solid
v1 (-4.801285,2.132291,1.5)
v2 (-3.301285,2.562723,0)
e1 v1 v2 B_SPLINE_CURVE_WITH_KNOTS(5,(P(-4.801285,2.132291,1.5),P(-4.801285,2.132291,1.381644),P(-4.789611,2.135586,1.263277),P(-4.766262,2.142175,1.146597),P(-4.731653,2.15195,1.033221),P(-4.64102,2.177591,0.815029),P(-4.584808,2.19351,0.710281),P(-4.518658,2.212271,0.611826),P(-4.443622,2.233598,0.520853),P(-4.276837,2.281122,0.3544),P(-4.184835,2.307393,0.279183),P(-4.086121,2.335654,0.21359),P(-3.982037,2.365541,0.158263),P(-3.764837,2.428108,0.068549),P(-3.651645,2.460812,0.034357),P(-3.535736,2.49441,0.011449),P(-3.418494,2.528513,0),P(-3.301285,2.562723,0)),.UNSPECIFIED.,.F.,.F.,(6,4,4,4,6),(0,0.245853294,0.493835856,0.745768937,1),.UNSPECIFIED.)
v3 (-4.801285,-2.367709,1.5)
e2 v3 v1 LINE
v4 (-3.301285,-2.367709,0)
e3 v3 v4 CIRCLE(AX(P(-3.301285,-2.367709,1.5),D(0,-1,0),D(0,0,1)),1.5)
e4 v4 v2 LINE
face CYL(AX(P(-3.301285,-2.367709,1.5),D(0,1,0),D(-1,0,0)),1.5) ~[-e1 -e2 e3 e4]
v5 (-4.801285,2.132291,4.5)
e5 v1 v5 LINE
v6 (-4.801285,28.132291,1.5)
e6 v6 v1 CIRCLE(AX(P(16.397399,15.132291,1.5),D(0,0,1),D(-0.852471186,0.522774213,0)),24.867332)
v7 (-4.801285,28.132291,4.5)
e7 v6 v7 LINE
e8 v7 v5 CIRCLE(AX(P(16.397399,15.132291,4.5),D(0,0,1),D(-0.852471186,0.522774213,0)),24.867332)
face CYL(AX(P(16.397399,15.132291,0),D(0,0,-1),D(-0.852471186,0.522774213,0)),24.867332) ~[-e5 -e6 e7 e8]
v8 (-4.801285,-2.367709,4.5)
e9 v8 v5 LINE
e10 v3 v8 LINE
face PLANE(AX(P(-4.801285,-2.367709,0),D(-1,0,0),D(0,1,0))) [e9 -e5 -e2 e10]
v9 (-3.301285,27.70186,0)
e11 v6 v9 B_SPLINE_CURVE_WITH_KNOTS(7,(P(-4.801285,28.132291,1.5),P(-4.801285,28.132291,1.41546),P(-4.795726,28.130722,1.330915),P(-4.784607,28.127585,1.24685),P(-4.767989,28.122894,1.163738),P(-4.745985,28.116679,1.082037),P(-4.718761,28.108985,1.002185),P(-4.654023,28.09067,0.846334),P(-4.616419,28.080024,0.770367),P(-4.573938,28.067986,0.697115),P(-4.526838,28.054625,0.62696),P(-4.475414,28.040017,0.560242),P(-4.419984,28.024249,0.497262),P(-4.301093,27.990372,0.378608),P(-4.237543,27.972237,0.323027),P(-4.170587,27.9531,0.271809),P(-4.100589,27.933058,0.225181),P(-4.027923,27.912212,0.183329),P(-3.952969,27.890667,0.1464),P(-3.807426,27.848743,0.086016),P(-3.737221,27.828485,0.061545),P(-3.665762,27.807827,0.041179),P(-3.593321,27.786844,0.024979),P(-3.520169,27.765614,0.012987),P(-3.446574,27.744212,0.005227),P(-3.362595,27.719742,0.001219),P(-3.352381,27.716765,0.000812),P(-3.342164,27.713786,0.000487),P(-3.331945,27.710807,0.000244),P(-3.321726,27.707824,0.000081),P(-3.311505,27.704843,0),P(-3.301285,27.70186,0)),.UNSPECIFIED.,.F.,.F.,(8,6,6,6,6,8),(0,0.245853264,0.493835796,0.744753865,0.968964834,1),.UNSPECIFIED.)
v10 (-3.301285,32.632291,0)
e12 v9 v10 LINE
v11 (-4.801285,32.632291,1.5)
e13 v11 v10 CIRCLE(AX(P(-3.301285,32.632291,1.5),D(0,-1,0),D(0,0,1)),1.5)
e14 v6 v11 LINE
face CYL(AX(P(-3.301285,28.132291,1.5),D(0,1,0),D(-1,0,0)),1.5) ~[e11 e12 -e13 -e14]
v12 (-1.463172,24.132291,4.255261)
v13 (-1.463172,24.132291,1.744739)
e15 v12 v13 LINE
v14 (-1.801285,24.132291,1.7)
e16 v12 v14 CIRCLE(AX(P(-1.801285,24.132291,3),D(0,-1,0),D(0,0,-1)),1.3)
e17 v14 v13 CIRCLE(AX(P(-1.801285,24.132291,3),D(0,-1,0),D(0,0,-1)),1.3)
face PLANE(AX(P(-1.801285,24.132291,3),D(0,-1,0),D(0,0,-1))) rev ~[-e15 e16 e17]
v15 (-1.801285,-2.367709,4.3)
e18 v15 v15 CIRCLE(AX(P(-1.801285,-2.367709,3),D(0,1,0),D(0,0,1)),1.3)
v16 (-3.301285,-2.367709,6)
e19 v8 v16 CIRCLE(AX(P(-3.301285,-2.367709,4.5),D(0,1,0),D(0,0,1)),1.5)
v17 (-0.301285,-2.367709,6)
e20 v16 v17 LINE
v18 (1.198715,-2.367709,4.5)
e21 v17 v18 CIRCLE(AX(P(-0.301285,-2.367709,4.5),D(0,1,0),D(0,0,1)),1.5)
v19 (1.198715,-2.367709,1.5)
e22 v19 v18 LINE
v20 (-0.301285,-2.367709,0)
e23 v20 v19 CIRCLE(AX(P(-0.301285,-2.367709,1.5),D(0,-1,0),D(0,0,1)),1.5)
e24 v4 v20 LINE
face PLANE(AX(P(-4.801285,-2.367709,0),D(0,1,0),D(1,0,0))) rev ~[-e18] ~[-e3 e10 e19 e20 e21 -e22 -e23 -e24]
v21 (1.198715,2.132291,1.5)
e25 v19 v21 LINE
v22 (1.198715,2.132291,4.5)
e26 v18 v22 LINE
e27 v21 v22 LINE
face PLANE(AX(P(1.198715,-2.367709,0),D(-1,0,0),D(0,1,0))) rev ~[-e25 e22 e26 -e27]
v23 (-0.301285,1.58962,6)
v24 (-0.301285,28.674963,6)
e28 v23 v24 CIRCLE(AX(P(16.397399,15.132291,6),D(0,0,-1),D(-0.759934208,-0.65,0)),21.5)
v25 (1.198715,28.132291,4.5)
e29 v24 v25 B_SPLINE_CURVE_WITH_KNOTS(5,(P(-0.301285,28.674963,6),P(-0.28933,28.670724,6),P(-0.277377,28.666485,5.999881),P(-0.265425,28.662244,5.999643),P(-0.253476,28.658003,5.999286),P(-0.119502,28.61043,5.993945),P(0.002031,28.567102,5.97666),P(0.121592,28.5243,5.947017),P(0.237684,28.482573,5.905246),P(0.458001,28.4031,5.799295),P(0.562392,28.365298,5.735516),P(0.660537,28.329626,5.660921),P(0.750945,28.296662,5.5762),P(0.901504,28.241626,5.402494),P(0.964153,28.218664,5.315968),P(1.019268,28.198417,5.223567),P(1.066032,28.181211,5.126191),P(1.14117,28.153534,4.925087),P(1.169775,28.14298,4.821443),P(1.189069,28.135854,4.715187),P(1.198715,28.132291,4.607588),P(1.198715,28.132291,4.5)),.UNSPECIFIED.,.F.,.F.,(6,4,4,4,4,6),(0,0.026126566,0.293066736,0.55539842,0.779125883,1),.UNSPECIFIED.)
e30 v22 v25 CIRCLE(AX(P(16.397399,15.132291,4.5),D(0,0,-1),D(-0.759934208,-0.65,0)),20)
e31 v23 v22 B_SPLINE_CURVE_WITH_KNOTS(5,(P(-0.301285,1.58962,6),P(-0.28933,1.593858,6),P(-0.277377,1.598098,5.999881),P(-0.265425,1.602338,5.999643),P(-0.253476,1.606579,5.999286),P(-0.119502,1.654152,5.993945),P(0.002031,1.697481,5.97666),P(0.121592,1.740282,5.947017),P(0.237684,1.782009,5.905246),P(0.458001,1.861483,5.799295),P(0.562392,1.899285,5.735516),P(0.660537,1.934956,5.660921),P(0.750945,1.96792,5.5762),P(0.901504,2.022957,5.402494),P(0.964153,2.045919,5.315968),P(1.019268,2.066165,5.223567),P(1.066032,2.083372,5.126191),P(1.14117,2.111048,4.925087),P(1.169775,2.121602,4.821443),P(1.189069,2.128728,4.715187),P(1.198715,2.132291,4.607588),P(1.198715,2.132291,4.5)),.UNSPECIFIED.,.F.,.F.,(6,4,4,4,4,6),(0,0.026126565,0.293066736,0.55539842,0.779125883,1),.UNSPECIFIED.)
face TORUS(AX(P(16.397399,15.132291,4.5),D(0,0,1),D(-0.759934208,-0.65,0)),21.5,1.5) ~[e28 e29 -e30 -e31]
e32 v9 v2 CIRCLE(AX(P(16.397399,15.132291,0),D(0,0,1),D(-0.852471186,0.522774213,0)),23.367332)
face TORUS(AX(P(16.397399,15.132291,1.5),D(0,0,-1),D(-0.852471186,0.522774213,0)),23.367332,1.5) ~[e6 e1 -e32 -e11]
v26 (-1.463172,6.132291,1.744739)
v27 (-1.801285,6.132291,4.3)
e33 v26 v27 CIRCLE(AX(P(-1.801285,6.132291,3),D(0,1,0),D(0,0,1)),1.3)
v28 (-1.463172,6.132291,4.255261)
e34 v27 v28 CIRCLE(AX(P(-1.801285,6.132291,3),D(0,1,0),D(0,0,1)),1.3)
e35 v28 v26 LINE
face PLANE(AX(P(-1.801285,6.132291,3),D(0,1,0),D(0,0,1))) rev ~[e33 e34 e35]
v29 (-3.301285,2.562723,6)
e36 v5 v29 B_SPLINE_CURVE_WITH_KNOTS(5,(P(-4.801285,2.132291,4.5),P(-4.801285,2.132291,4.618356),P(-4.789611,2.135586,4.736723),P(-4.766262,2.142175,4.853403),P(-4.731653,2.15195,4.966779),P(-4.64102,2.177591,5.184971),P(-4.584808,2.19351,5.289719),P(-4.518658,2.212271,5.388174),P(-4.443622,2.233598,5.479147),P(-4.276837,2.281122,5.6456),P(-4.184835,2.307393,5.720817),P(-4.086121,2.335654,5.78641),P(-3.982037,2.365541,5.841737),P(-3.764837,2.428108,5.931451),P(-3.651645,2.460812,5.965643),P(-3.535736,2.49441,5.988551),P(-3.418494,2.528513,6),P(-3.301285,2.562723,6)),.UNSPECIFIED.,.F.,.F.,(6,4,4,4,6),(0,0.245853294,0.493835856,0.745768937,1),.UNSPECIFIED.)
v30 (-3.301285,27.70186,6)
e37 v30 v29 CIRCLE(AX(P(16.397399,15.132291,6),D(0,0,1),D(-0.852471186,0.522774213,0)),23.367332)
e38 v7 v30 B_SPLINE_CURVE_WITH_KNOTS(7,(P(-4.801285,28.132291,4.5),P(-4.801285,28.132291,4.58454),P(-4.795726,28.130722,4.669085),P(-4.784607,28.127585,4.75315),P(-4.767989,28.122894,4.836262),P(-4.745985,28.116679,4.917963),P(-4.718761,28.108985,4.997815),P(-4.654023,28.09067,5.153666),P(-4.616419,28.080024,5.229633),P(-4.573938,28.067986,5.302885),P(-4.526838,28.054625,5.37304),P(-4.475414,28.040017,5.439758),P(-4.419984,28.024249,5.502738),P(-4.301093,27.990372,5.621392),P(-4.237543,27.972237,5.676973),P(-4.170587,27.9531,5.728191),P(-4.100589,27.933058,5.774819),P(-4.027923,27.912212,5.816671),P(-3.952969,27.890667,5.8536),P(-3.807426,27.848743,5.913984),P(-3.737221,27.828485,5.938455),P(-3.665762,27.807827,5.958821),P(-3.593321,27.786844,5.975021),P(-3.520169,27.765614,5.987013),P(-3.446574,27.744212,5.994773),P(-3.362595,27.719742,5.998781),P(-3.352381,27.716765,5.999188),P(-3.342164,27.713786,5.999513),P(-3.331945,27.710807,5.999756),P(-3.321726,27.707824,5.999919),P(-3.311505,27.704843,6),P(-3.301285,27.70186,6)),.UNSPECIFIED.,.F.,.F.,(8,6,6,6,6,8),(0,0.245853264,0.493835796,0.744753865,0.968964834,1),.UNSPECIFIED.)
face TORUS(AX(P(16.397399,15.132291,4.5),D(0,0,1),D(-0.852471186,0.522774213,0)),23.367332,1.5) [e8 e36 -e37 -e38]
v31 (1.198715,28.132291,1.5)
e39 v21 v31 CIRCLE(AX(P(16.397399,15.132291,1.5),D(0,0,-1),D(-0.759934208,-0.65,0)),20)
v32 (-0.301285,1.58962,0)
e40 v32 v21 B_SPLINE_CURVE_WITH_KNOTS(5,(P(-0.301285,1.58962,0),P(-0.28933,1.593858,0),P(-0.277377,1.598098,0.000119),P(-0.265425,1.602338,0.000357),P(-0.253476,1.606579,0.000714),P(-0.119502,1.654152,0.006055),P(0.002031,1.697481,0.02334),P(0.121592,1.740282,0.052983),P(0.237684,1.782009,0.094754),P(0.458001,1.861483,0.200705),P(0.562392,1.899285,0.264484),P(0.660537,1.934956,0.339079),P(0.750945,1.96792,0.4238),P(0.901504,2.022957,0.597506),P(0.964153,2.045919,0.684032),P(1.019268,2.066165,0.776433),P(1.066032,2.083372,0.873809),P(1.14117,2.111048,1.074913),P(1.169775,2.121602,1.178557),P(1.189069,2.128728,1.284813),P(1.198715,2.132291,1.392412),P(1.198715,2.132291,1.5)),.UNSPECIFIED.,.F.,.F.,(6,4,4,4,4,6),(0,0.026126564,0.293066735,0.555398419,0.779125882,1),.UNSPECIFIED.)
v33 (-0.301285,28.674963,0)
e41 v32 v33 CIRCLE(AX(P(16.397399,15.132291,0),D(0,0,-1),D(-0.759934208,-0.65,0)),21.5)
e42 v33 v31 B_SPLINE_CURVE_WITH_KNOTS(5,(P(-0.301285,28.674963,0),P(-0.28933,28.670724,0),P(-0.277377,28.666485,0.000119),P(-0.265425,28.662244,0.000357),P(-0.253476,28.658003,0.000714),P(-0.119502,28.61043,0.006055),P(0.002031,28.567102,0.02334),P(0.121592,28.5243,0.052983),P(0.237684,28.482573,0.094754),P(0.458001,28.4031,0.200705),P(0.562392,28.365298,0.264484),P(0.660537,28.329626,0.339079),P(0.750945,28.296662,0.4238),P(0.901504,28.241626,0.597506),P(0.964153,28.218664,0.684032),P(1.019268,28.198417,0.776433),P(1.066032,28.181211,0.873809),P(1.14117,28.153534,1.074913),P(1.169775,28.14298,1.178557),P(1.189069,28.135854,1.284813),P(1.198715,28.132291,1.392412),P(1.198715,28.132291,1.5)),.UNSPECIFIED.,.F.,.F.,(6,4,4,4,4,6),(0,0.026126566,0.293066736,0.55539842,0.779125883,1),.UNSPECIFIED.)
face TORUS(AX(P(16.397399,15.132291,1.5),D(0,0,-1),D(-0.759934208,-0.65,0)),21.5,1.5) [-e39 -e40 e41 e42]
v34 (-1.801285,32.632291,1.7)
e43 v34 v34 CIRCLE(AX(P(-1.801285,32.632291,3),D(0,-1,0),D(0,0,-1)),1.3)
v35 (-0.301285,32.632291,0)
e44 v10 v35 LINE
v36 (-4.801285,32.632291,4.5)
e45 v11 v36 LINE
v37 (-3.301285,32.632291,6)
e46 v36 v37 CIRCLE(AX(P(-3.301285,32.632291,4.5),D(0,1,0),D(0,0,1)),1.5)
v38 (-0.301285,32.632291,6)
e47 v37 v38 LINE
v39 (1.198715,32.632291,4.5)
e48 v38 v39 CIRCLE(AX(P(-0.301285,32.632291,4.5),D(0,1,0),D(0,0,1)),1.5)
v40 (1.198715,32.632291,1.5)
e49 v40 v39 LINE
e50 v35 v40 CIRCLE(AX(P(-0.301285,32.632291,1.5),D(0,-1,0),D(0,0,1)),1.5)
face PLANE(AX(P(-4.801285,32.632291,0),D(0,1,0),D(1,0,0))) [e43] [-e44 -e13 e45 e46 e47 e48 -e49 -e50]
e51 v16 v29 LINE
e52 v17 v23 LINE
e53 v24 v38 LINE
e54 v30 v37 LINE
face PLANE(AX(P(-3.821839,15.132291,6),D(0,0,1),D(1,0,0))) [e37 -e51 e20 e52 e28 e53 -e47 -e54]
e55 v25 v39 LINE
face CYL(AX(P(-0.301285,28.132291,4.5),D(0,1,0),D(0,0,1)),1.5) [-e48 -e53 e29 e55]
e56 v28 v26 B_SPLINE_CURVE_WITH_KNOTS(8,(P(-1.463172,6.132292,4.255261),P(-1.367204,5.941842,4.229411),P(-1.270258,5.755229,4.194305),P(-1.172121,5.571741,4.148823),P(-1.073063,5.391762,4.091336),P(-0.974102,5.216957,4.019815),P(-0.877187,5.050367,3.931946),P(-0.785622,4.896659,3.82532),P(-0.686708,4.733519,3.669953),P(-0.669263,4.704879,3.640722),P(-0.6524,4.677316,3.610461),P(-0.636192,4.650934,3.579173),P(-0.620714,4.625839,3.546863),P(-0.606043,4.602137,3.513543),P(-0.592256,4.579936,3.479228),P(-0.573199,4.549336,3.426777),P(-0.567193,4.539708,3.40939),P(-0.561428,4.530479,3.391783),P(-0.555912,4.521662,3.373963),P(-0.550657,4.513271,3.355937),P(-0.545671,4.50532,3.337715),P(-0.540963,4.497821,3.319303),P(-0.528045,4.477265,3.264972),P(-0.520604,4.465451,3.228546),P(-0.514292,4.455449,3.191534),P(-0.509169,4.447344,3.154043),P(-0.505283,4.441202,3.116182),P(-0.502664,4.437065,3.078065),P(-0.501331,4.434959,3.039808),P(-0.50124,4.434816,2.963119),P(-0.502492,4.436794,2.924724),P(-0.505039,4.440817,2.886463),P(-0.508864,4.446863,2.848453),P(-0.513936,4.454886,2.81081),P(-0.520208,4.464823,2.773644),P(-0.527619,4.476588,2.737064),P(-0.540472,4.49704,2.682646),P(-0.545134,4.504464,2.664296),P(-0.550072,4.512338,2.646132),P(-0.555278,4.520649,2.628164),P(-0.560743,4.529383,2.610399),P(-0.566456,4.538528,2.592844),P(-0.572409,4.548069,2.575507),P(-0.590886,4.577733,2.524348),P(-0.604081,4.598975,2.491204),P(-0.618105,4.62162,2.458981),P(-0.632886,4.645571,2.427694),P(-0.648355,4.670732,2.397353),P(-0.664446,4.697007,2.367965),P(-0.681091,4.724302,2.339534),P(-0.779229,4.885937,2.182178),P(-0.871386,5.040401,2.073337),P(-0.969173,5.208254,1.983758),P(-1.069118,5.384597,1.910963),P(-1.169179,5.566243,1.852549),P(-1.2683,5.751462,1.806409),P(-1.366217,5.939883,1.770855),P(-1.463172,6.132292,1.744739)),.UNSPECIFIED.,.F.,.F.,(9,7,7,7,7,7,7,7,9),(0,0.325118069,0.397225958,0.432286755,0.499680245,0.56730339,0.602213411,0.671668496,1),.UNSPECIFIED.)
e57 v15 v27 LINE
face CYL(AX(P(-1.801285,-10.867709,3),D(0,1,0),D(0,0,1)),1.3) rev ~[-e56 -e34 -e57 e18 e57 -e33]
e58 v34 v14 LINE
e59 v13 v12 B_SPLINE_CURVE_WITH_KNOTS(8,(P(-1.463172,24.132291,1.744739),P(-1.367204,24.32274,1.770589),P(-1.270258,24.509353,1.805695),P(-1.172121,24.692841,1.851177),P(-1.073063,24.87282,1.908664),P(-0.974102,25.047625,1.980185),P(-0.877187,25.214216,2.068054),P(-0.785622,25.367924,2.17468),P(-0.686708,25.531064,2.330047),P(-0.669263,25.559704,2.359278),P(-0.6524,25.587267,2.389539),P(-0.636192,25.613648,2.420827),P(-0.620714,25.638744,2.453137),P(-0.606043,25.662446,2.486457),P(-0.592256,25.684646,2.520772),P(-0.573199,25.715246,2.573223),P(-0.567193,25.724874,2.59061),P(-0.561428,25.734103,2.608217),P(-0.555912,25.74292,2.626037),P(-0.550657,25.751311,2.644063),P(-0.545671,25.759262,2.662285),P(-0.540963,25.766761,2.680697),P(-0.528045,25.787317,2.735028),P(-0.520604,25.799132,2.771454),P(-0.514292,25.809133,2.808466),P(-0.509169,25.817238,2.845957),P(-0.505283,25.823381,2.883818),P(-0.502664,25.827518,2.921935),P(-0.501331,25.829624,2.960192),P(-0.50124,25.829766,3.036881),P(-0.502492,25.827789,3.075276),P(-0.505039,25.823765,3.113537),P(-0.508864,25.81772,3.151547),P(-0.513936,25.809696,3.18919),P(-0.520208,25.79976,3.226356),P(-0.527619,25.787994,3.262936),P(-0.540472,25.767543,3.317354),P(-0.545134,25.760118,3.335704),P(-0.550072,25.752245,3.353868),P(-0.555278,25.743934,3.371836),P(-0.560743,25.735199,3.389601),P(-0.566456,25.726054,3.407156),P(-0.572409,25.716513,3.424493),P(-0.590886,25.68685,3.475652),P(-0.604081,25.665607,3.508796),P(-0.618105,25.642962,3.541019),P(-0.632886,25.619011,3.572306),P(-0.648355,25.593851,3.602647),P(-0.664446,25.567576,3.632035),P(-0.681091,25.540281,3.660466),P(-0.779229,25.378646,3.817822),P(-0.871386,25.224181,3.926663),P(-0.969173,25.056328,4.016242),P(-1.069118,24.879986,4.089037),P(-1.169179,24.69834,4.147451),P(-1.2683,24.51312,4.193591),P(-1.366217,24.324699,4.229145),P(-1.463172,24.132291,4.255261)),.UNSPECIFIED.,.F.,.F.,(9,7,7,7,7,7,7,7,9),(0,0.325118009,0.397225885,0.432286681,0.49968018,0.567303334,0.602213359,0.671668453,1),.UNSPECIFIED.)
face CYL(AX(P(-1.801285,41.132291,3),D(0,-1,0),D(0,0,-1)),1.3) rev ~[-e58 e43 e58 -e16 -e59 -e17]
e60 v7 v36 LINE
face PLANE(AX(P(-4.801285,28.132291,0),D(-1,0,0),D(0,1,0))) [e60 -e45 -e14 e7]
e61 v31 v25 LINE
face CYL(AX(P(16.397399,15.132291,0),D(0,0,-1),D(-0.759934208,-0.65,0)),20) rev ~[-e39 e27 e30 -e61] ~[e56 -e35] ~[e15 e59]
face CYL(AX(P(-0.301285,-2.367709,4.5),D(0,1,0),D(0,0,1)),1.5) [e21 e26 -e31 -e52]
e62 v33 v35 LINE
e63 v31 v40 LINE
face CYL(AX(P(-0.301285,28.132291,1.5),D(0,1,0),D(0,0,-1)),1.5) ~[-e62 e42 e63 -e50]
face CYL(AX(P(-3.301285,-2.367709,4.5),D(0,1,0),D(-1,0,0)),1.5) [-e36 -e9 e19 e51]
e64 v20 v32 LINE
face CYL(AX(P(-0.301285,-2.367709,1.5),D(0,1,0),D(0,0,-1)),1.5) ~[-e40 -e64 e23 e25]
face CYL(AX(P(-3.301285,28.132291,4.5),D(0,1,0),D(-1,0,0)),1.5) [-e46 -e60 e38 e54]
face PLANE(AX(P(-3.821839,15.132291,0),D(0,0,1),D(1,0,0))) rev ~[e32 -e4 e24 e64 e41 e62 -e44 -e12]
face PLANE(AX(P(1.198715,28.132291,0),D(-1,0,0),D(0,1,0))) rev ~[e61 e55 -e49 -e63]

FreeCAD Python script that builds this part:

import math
import FreeCAD as App
import Part
import Sketcher

V = App.Vector
Q = App.Units.Quantity


def edges_at(feature, points):
    """Names of the edges that pass closest to the given points."""
    edges = feature.Shape.Edges
    near = lambda p: min(range(len(edges)), key=lambda i: edges[i].distToShape(Part.Vertex(*p))[0])
    return sorted({f"Edge{near(p) + 1}" for p in points})

doc = App.newDocument("Part")
body = doc.addObject("PartDesign::Body", "Body")

# Sketch on XY plane
sketch1 = body.newObject("Sketcher::SketchObject", "Sketch")
sketch1.AttachmentSupport = (doc.getObject("XY_Plane"), [""])
sketch1.MapMode = "FlatFace"
sketch1.addGeometry([
    Part.ArcOfCircle(Part.Circle(V(16.4, 15.1, 0), V(0, 0, 1), 24.9), math.radians(148), math.radians(212)),  # 0
    Part.LineSegment(V(-4.8, 2.1, 0), V(-4.8, -2.4, 0)),  # 1
    Part.LineSegment(V(-4.8, -2.4, 0), V(1.2, -2.4, 0)),  # 2
    Part.LineSegment(V(1.2, -2.4, 0), V(1.2, 2.1, 0)),  # 3
    Part.ArcOfCircle(Part.Circle(V(16.4, 15.1, 0), V(0, 0, 1), 20), math.radians(139), math.radians(221)),  # 4
    Part.LineSegment(V(1.2, 28.1, 0), V(1.2, 32.6, 0)),  # 5
    Part.LineSegment(V(1.2, 32.6, 0), V(-4.8, 32.6, 0)),  # 6
    Part.LineSegment(V(-4.8, 32.6, 0), V(-4.8, 28.1, 0)),  # 7
], False)
sketch1.addConstraint([
    Sketcher.Constraint("Coincident", 0, 2, 1, 1),
    Sketcher.Constraint("Coincident", 1, 2, 2, 1),
    Sketcher.Constraint("Coincident", 2, 2, 3, 1),
    Sketcher.Constraint("Coincident", 3, 2, 4, 2),
    Sketcher.Constraint("Coincident", 4, 1, 5, 1),
    Sketcher.Constraint("Coincident", 5, 2, 6, 1),
    Sketcher.Constraint("Coincident", 6, 2, 7, 1),
    Sketcher.Constraint("Coincident", 7, 2, 0, 1),
    Sketcher.Constraint("Vertical", 1),
    Sketcher.Constraint("Horizontal", 2),
    Sketcher.Constraint("Vertical", 3),
    Sketcher.Constraint("Vertical", 5),
    Sketcher.Constraint("Horizontal", 6),
    Sketcher.Constraint("Vertical", 7),
    Sketcher.Constraint("Coincident", 4, 3, 0, 3),
    Sketcher.Constraint("Horizontal", 0, 2, 3, 2),
    Sketcher.Constraint("Horizontal", 4, 1, 7, 2),
    Sketcher.Constraint("Vertical", 3, 2, 4, 1),
    Sketcher.Constraint("Equal", 3, 5),
    Sketcher.Constraint("Radius", 4, Q("20 mm")),
    Sketcher.Constraint("DistanceX", 2, 1, 2, 2, Q("6 mm")),
    Sketcher.Constraint("DistanceY", 1, 2, 1, 1, Q("4.5 mm")),
    Sketcher.Constraint("DistanceY", 0, 2, 4, 3, Q("13 mm")),
    Sketcher.Constraint("DistanceX", -1, 1, 0, 3, Q("16.397399 mm")),
    Sketcher.Constraint("DistanceY", -1, 1, 0, 3, Q("15.132291 mm")),
])
pad1 = body.newObject("PartDesign::Pad", "Pad")
pad1.Profile = sketch1
pad1.Length = 6

# Sketch on XZ plane
sketch2 = body.newObject("Sketcher::SketchObject", "Sketch001")
sketch2.AttachmentSupport = (doc.getObject("XZ_Plane"), [""])
sketch2.MapMode = "FlatFace"
sketch2.AttachmentOffset = App.Placement(V(0, 0, -32.632291), App.Rotation())
sketch2.addGeometry(Part.Circle(V(-1.8, 3, 0), V(0, 0, 1), 1.3), False)
sketch2.addConstraint([
    Sketcher.Constraint("Diameter", 0, Q("2.6 mm")),
    Sketcher.Constraint("DistanceY", -1, 1, 0, 3, Q("3 mm")),
    Sketcher.Constraint("DistanceX", 0, 3, -1, 1, Q("1.801285 mm")),
])
doc.recompute()
hole = body.newObject("PartDesign::Hole", "Hole")
hole.Profile = sketch2
hole.ThreadType = "None"
hole.Diameter = 2.6
hole.DepthType = "Dimension"
hole.Depth = 8.5
hole.DrillPoint = "Flat"
hole.Reversed = True

# Sketch on XZ plane
sketch3 = body.newObject("Sketcher::SketchObject", "Sketch002")
sketch3.AttachmentSupport = (doc.getObject("XZ_Plane"), [""])
sketch3.MapMode = "FlatFace"
sketch3.AttachmentOffset = App.Placement(V(0, 0, 2.367709), App.Rotation())
sketch3.addGeometry(Part.Circle(V(-1.8, 3, 0), V(0, 0, 1), 1.3), False)
sketch3.addConstraint([
    Sketcher.Constraint("Diameter", 0, Q("2.6 mm")),
    Sketcher.Constraint("DistanceY", -1, 1, 0, 3, Q("3 mm")),
    Sketcher.Constraint("DistanceX", 0, 3, -1, 1, Q("1.801285 mm")),
])
doc.recompute()
hole2 = body.newObject("PartDesign::Hole", "Hole001")
hole2.Profile = sketch3
hole2.ThreadType = "None"
hole2.Diameter = 2.6
hole2.DepthType = "Dimension"
hole2.Depth = 8.5
hole2.DrillPoint = "Flat"
doc.recompute()

fillet = body.newObject("PartDesign::Fillet", "Fillet")
fillet.Base = (hole2, edges_at(hole2, [
    (1.199, 30.382, 6),
    (-4.801, -0.118, 0),
    (-8.47, 15.132, 0),
    (-4.801, 30.382, 0),
    (1.199, 30.382, 0),
    (-3.603, 15.132, 0),
    (-4.801, 30.382, 6),
    (-8.47, 15.132, 6),
    (-4.801, -0.118, 6),
    (1.199, -0.118, 6),
    (-3.603, 15.132, 6),
    (1.199, -0.118, 0),
]))
fillet.Radius = 1.5

doc.recompute()
